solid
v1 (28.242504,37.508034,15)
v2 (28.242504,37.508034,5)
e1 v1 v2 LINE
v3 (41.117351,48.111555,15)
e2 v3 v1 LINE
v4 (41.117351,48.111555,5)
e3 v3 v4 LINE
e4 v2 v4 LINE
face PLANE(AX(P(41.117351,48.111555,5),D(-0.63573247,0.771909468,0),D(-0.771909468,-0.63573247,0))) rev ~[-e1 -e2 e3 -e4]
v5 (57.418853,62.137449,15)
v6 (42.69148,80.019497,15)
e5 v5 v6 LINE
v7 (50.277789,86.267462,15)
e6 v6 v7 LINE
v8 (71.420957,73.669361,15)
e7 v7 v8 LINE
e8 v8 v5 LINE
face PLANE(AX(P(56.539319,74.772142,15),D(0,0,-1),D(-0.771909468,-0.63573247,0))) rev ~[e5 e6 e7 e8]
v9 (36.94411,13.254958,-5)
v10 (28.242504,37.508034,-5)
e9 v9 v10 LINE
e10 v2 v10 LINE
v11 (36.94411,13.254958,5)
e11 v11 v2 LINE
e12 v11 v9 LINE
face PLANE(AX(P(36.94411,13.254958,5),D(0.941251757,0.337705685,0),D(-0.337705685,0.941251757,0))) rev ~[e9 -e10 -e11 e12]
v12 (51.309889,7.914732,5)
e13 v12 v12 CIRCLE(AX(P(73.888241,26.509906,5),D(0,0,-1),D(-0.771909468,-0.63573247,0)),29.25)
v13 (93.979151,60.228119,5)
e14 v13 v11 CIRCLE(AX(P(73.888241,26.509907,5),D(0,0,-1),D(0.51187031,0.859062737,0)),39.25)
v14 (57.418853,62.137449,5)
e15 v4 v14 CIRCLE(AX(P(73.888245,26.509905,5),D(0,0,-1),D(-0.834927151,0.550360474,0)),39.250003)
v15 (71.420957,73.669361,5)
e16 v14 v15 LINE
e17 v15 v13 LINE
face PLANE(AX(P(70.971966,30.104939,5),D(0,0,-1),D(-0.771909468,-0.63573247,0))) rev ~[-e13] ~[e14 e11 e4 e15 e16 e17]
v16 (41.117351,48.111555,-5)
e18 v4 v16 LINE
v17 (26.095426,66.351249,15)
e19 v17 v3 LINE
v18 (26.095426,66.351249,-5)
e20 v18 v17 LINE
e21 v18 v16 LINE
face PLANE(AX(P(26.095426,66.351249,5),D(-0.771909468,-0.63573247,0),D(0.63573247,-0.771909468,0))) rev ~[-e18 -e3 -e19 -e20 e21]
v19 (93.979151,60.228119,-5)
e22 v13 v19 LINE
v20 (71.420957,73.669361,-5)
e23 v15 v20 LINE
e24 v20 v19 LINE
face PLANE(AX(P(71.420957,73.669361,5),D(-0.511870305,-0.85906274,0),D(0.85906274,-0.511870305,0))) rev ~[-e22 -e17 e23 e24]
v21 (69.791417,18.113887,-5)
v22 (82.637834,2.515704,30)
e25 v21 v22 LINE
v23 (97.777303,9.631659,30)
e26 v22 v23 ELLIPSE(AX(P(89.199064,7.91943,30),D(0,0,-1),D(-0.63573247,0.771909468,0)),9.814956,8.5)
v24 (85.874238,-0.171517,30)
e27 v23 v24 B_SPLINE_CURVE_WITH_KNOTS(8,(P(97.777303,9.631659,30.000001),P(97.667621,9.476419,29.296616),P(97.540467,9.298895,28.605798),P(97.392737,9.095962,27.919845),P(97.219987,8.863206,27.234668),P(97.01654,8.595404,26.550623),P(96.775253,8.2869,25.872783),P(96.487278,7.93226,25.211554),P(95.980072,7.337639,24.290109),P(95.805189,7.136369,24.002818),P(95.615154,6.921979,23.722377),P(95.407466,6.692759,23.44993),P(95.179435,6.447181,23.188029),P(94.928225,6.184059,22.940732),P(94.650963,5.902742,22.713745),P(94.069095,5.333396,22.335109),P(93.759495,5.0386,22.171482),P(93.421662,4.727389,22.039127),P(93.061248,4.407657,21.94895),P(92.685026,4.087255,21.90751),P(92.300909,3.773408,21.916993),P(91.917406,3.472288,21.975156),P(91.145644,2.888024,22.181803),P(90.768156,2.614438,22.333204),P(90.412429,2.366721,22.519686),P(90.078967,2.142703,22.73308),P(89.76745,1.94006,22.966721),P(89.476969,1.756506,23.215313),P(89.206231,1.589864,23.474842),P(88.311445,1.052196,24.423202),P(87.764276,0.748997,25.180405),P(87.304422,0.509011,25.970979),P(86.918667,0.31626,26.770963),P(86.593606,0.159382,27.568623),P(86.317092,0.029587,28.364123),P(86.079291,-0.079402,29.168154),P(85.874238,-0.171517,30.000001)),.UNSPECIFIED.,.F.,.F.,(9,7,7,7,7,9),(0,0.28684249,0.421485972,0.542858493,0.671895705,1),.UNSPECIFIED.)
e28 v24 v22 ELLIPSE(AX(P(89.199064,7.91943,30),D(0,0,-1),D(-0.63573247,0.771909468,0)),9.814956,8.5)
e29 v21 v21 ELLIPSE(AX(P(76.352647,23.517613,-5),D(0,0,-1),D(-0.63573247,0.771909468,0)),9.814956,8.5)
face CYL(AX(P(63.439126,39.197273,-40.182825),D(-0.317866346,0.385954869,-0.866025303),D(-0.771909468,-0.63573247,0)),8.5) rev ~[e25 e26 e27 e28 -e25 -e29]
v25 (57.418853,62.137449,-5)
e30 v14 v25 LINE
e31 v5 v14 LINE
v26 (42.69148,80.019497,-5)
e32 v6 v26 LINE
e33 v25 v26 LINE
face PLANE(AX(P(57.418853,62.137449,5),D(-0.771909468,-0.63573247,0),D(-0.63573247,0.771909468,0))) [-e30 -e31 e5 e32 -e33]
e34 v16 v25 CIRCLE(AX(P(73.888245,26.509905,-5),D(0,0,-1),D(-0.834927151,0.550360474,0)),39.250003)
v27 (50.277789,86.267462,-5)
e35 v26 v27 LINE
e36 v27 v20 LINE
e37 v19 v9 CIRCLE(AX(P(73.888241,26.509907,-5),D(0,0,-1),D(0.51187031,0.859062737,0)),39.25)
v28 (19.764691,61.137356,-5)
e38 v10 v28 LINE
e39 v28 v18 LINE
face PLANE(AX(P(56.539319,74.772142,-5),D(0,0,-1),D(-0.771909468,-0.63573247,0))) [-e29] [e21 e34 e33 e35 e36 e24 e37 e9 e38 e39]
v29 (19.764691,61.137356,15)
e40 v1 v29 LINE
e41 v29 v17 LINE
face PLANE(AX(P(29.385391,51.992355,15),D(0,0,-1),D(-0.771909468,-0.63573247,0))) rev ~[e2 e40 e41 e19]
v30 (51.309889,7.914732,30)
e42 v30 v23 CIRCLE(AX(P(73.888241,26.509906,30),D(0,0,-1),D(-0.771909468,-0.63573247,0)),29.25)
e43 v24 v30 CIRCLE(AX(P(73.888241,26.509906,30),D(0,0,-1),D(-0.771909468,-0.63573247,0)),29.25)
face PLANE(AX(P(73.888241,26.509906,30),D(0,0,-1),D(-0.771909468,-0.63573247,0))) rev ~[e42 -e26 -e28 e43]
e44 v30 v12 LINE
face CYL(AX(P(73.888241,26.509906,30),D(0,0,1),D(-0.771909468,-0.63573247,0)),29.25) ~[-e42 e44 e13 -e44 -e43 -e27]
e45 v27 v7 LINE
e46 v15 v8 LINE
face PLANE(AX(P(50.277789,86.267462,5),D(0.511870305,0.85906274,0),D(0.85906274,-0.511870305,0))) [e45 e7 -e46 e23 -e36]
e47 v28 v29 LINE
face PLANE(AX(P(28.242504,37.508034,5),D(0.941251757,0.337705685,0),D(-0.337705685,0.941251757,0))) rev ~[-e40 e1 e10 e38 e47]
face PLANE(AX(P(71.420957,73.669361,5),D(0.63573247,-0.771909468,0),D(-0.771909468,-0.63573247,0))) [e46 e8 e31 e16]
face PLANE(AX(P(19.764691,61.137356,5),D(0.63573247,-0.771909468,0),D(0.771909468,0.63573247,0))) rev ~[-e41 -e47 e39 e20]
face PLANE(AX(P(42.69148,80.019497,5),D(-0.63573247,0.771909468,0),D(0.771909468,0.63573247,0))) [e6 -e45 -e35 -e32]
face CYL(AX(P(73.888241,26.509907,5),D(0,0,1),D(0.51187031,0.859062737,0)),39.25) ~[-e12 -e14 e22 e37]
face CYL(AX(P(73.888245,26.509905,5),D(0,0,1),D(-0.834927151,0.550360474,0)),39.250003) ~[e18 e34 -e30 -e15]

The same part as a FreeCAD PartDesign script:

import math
import FreeCAD as App
import Part
import Sketcher

doc = App.newDocument("Part")
body = doc.addObject("PartDesign::Body", "Body")

sketch1 = body.newObject("Sketcher::SketchObject", "Sketch")
sketch1.AttachmentSupport = (doc.getObject("XY_Plane"), [""])
sketch1.MapMode = "FlatFace"
sketch1.addGeometry(Part.Circle(App.Vector(0, 0, 0), App.Vector(0, 0, 1), 29), False)
sketch1.addConstraint(Sketcher.Constraint("Coincident", 0, 3, -1, 1))
sketch1.addConstraint(Sketcher.Constraint("Diameter", 0, 58.5))
pad1 = body.newObject("PartDesign::Pad", "Pad")
pad1.Profile = sketch1
pad1.Length = 25

sketch2 = body.newObject("Sketcher::SketchObject", "Sketch001")
sketch2.AttachmentSupport = (doc.getObject("XY_Plane"), [""])
sketch2.MapMode = "FlatFace"
sketch2.AttachmentOffset = App.Placement(App.Vector(0, 0, 25), App.Rotation())
sketch2.addGeometry(Part.LineSegment(App.Vector(28, 38, 0), App.Vector(12, 38, 0)), False)
sketch2.addGeometry(Part.ArcOfCircle(Part.Circle(App.Vector(0, 0, 0), App.Vector(0, 0, 1), 39), math.radians(73), math.radians(105)), False)
sketch2.addGeometry(Part.LineSegment(App.Vector(-10, 38, 0), App.Vector(-28, 38, 0)), False)
sketch2.addGeometry(Part.LineSegment(App.Vector(-28, 38, 0), App.Vector(-37, 13, 0)), False)
sketch2.addGeometry(Part.ArcOfCircle(Part.Circle(App.Vector(0, 0, 0), App.Vector(0, 0, 1), 39), math.radians(160), math.radians(380)), False)
sketch2.addGeometry(Part.LineSegment(App.Vector(37, 13, 0), App.Vector(28, 38, 0)), False)
sketch2.addConstraint(Sketcher.Constraint("Coincident", 0, 2, 1, 1))
sketch2.addConstraint(Sketcher.Constraint("Coincident", 1, 2, 2, 1))
sketch2.addConstraint(Sketcher.Constraint("Coincident", 2, 2, 3, 1))
sketch2.addConstraint(Sketcher.Constraint("Tangent", 3, 2, 4, 1))
sketch2.addConstraint(Sketcher.Constraint("Tangent", 4, 2, 5, 1))
sketch2.addConstraint(Sketcher.Constraint("Coincident", 5, 2, 0, 1))
sketch2.addConstraint(Sketcher.Constraint("Horizontal", 0))
sketch2.addConstraint(Sketcher.Constraint("Horizontal", 2))
sketch2.addConstraint(Sketcher.Constraint("Coincident", 1, 3, -1, 1))
sketch2.addConstraint(Sketcher.Constraint("Coincident", 4, 3, -1, 1))
sketch2.addConstraint(Sketcher.Constraint("Horizontal", 3, 2, 4, 2))
sketch2.addConstraint(Sketcher.Constraint("Radius", 4, 39.25))
sketch2.addConstraint(Sketcher.Constraint("DistanceX", 1, 2, 0, 2, 21.5))
sketch2.addConstraint(Sketcher.Constraint("Radius", 1, 39.250003))
sketch2.addConstraint(Sketcher.Constraint("DistanceX", 0, 2, 0, 1, 16.679219))
sketch2.addConstraint(Sketcher.Constraint("Distance", 5, 25.766832))
pad2 = body.newObject("PartDesign::Pad", "Pad001")
pad2.Profile = sketch2
pad2.Length = 10

sketch3 = body.newObject("Sketcher::SketchObject", "Sketch002")
sketch3.AttachmentSupport = (doc.getObject("XY_Plane"), [""])
sketch3.MapMode = "FlatFace"
sketch3.AttachmentOffset = App.Placement(App.Vector(0, 0, 25), App.Rotation())
sketch3.addGeometry(Part.LineSegment(App.Vector(12, 61, 0), App.Vector(12, 38, 0)), False)
sketch3.addGeometry(Part.LineSegment(App.Vector(12, 38, 0), App.Vector(28, 38, 0)), False)
sketch3.addGeometry(Part.LineSegment(App.Vector(28, 38, 0), App.Vector(20, 61, 0)), False)
sketch3.addGeometry(Part.LineSegment(App.Vector(20, 61, 0), App.Vector(12, 61, 0)), False)
sketch3.addGeometry(Part.LineSegment(App.Vector(-28, 38, 0), App.Vector(-10, 38, 0)), False)
sketch3.addGeometry(Part.LineSegment(App.Vector(-10, 38, 0), App.Vector(-10, 61, 0)), False)
sketch3.addGeometry(Part.LineSegment(App.Vector(-10, 61, 0), App.Vector(-20, 61, 0)), False)
sketch3.addGeometry(Part.LineSegment(App.Vector(-20, 61, 0), App.Vector(-28, 38, 0)), False)
sketch3.addConstraint(Sketcher.Constraint("Coincident", 0, 2, 1, 1))
sketch3.addConstraint(Sketcher.Constraint("Coincident", 1, 2, 2, 1))
sketch3.addConstraint(Sketcher.Constraint("Coincident", 2, 2, 3, 1))
sketch3.addConstraint(Sketcher.Constraint("Coincident", 3, 2, 0, 1))
sketch3.addConstraint(Sketcher.Constraint("Coincident", 4, 2, 5, 1))
sketch3.addConstraint(Sketcher.Constraint("Coincident", 5, 2, 6, 1))
sketch3.addConstraint(Sketcher.Constraint("Coincident", 6, 2, 7, 1))
sketch3.addConstraint(Sketcher.Constraint("Coincident", 7, 2, 4, 1))
sketch3.addConstraint(Sketcher.Constraint("Vertical", 0))
sketch3.addConstraint(Sketcher.Constraint("Horizontal", 1))
sketch3.addConstraint(Sketcher.Constraint("Horizontal", 3))
sketch3.addConstraint(Sketcher.Constraint("Horizontal", 4))
sketch3.addConstraint(Sketcher.Constraint("Vertical", 5))
sketch3.addConstraint(Sketcher.Constraint("Horizontal", 6))
sketch3.addConstraint(Sketcher.Constraint("Symmetric", 2, 2, 6, 2, -2))
sketch3.addConstraint(Sketcher.Constraint("DistanceX", 4, 2, 0, 2, 21.5))
sketch3.addConstraint(Sketcher.Constraint("Distance", 7, 24.611902))
sketch3.addConstraint(Sketcher.Constraint("DistanceX", 1, 1, 1, 2, 16.679219))
sketch3.addConstraint(Sketcher.Constraint("DistanceY", 0, 2, 0, 1, 23.629318))
sketch3.addConstraint(Sketcher.Constraint("DistanceX", 3, 2, 3, 1, 8.201396))
sketch3.addConstraint(Sketcher.Constraint("DistanceX", 4, 1, 4, 2, 18.139567))
sketch3.addConstraint(Sketcher.Constraint("DistanceX", 6, 2, 6, 1, 9.827978))
sketch3.addConstraint(Sketcher.Constraint("DistanceY", -1, 1, 0, 2, 37.508036))
pad3 = body.newObject("PartDesign::Pad", "Pad002")
pad3.Profile = sketch3
pad3.Length = 20
pad3.Midplane = True

sketch4 = body.newObject("Sketcher::SketchObject", "Sketch003")
sketch4.Placement = App.Placement(App.Vector(0, 34.499137, 59.754259), App.Rotation(App.Vector(1, 0, 0), App.Vector(0, 0.866025303, -0.500000175), App.Vector(0, 0.500000175, 0.866025303), "ZXY"))
sketch4.addGeometry(Part.Circle(App.Vector(0, -21, 0), App.Vector(0, 0, 1), 8), False)
sketch4.addConstraint(Sketcher.Constraint("PointOnObject", 0, 3, -2))
sketch4.addConstraint(Sketcher.Constraint("Diameter", 0, 17.0))
sketch4.addConstraint(Sketcher.Constraint("DistanceY", 0, 3, -1, 1, 20.857124))
pocket1 = body.newObject("PartDesign::Pocket", "Pocket")
pocket1.Profile = sketch4
pocket1.Length = 152
body2 = doc.addObject("PartDesign::Body", "Body001")
doc.recompute()

body.Placement = App.Placement(App.Vector(73.888241, 26.509906, 30), App.Rotation(App.Vector(0.337705887, -0.941251685, 0), 180))
boolean = body2.newObject("PartDesign::Boolean", "Boolean")
boolean.Type = "Fuse"
boolean.addObjects([body])

doc.recompute()
